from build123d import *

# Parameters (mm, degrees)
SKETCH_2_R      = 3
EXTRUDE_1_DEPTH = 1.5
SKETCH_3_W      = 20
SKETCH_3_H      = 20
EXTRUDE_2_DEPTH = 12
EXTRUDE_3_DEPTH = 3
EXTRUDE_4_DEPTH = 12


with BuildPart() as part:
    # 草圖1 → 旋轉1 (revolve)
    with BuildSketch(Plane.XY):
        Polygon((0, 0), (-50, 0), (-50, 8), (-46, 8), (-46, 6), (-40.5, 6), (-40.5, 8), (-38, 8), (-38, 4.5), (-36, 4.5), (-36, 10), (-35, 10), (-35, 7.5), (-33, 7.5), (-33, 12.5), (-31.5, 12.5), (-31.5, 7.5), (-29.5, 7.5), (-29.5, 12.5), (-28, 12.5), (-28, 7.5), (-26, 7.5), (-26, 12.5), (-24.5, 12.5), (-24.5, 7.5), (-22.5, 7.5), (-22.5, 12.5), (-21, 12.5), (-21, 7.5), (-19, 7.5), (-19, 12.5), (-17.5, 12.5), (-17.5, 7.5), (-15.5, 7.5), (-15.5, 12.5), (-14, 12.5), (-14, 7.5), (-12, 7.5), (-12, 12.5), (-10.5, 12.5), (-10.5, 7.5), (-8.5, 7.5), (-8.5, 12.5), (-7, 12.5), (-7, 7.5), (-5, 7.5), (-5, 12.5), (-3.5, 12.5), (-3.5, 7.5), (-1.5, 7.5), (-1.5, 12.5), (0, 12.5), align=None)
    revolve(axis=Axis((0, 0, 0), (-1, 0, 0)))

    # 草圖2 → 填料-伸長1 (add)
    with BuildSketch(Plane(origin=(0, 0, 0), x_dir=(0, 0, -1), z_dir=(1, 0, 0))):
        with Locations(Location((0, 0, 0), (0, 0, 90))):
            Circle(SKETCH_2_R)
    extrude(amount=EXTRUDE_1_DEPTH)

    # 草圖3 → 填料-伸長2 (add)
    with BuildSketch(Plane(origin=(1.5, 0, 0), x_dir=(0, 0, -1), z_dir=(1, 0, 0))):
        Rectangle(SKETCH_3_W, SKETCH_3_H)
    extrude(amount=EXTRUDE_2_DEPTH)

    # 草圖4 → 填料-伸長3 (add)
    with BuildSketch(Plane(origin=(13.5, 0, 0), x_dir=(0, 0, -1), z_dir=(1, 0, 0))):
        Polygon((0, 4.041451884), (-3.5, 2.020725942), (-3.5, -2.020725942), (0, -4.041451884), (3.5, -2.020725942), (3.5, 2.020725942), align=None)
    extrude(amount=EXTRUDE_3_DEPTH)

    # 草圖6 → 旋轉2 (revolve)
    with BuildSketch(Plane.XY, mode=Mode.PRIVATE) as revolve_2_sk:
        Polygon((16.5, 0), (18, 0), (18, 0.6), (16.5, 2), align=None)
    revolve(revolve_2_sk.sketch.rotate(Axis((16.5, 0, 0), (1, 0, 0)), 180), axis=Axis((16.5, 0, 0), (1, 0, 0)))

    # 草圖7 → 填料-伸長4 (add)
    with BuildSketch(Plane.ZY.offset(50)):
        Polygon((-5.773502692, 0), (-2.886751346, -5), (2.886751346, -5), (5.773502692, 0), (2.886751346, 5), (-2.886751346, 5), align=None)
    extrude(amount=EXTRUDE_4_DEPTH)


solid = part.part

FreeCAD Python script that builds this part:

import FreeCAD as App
import Part
import Sketcher
Q = App.Units.Quantity


def add_polygon(sketch, points):
    """Adds a closed chain of lines whose ends are joined by coincident constraints."""
    first, n = sketch.GeometryCount, len(points)
    for a, b in zip(points, points[1:] + points[:1]):
        sketch.addGeometry(Part.LineSegment(App.Vector(*a, 0), App.Vector(*b, 0)), False)
    for i in range(n):
        sketch.addConstraint(Sketcher.Constraint("Coincident", first + i, 2, first + (i + 1) % n, 1))

doc = App.newDocument("Part")
body = doc.addObject("PartDesign::Body", "Body")

# Sketch on XY plane
sketch1 = doc.addObject("Sketcher::SketchObject", "Sketch")
body.addObject(sketch1)
sketch1.AttachmentSupport = (doc.XY_Plane, [""])
sketch1.MapMode = "FlatFace"
add_polygon(sketch1, [(-50, 0), (0, 0), (0, 12.5), (-1.5, 12.5), (-1.5, 7.5), (-3.5, 7.5), (-3.5, 12.5), (-5, 12.5), (-5, 7.5), (-7, 7.5), (-7, 12.5), (-8.5, 12.5), (-8.5, 7.5), (-10.5, 7.5), (-10.5, 12.5), (-12, 12.5), (-12, 7.5), (-14, 7.5), (-14, 12.5), (-15.5, 12.5), (-15.5, 7.5), (-17.5, 7.5), (-17.5, 12.5), (-19, 12.5), (-19, 7.5), (-21, 7.5), (-21, 12.5), (-22.5, 12.5), (-22.5, 7.5), (-24.5, 7.5), (-24.5, 12.5), (-26, 12.5), (-26, 7.5), (-28, 7.5), (-28, 12.5), (-29.5, 12.5), (-29.5, 7.5), (-31.5, 7.5), (-31.5, 12.5), (-33, 12.5), (-33, 7.5), (-35, 7.5), (-35, 10), (-36, 10), (-36, 4.5), (-38, 4.5), (-38, 8), (-40.5, 8), (-40.5, 6), (-46, 6), (-46, 8), (-50, 8)])  # lines 0-51
sketch1.addConstraint([
    Sketcher.Constraint("Horizontal", 0),
    Sketcher.Constraint("Vertical", 1),
    Sketcher.Constraint("Horizontal", 2),
    Sketcher.Constraint("Vertical", 3),
    Sketcher.Constraint("Horizontal", 4),
    Sketcher.Constraint("Vertical", 5),
    Sketcher.Constraint("Horizontal", 6),
    Sketcher.Constraint("Vertical", 7),
    Sketcher.Constraint("Horizontal", 8),
    Sketcher.Constraint("Vertical", 9),
    Sketcher.Constraint("Horizontal", 10),
    Sketcher.Constraint("Vertical", 11),
    Sketcher.Constraint("Horizontal", 12),
    Sketcher.Constraint("Vertical", 13),
    Sketcher.Constraint("Horizontal", 14),
    Sketcher.Constraint("Vertical", 15),
    Sketcher.Constraint("Horizontal", 16),
    Sketcher.Constraint("Vertical", 17),
    Sketcher.Constraint("Horizontal", 18),
    Sketcher.Constraint("Vertical", 19),
    Sketcher.Constraint("Horizontal", 20),
    Sketcher.Constraint("Vertical", 21),
    Sketcher.Constraint("Horizontal", 22),
    Sketcher.Constraint("Vertical", 23),
    Sketcher.Constraint("Horizontal", 24),
    Sketcher.Constraint("Vertical", 25),
    Sketcher.Constraint("Horizontal", 26),
    Sketcher.Constraint("Vertical", 27),
    Sketcher.Constraint("Horizontal", 28),
    Sketcher.Constraint("Vertical", 29),
    Sketcher.Constraint("Horizontal", 30),
    Sketcher.Constraint("Vertical", 31),
    Sketcher.Constraint("Horizontal", 32),
    Sketcher.Constraint("Vertical", 33),
    Sketcher.Constraint("Horizontal", 34),
    Sketcher.Constraint("Vertical", 35),
    Sketcher.Constraint("Horizontal", 36),
    Sketcher.Constraint("Vertical", 37),
    Sketcher.Constraint("Horizontal", 38),
    Sketcher.Constraint("Vertical", 39),
    Sketcher.Constraint("Horizontal", 40),
    Sketcher.Constraint("Vertical", 41),
    Sketcher.Constraint("Horizontal", 42),
    Sketcher.Constraint("Vertical", 43),
    Sketcher.Constraint("Horizontal", 44),
    Sketcher.Constraint("Vertical", 45),
    Sketcher.Constraint("Horizontal", 46),
    Sketcher.Constraint("Vertical", 47),
    Sketcher.Constraint("Horizontal", 48),
    Sketcher.Constraint("Vertical", 49),
    Sketcher.Constraint("Horizontal", 50),
    Sketcher.Constraint("Vertical", 51),
    Sketcher.Constraint("Coincident", 0, 2, -1, 1),
    Sketcher.Constraint("Horizontal", 2, 2, 5, 2),
    Sketcher.Constraint("Horizontal", 4, 2, 7, 2),
    Sketcher.Constraint("Horizontal", 6, 2, 9, 2),
    Sketcher.Constraint("Horizontal", 8, 2, 11, 2),
    Sketcher.Constraint("Horizontal", 10, 2, 13, 2),
    Sketcher.Constraint("Horizontal", 12, 2, 15, 2),
    Sketcher.Constraint("Horizontal", 14, 2, 17, 2),
    Sketcher.Constraint("Horizontal", 16, 2, 19, 2),
    Sketcher.Constraint("Horizontal", 18, 2, 21, 2),
    Sketcher.Constraint("Horizontal", 20, 2, 23, 2),
    Sketcher.Constraint("Horizontal", 22, 2, 25, 2),
    Sketcher.Constraint("Horizontal", 24, 2, 27, 2),
    Sketcher.Constraint("Horizontal", 26, 2, 29, 2),
    Sketcher.Constraint("Horizontal", 28, 2, 31, 2),
    Sketcher.Constraint("Horizontal", 30, 2, 33, 2),
    Sketcher.Constraint("Horizontal", 32, 2, 35, 2),
    Sketcher.Constraint("Horizontal", 34, 2, 37, 2),
    Sketcher.Constraint("Horizontal", 36, 2, 39, 2),
    Sketcher.Constraint("Horizontal", 46, 2, 49, 2),
    Sketcher.Constraint("Equal", 2, 6),
    Sketcher.Constraint("Equal", 4, 8),
    Sketcher.Constraint("Equal", 6, 10),
    Sketcher.Constraint("Equal", 8, 12),
    Sketcher.Constraint("Equal", 10, 14),
    Sketcher.Constraint("Equal", 12, 16),
    Sketcher.Constraint("Equal", 14, 18),
    Sketcher.Constraint("Equal", 16, 20),
    Sketcher.Constraint("Equal", 18, 22),
    Sketcher.Constraint("Equal", 20, 24),
    Sketcher.Constraint("Equal", 22, 26),
    Sketcher.Constraint("Equal", 24, 28),
    Sketcher.Constraint("Equal", 26, 30),
    Sketcher.Constraint("Equal", 28, 32),
    Sketcher.Constraint("Equal", 30, 34),
    Sketcher.Constraint("Equal", 32, 36),
    Sketcher.Constraint("Equal", 34, 38),
    Sketcher.Constraint("Equal", 36, 40),
    Sketcher.Constraint("Equal", 40, 44),
    Sketcher.Constraint("Equal", 46, 41),
    Sketcher.Constraint("Equal", 48, 43),
    Sketcher.Constraint("Equal", 44, 47),
    Sketcher.Constraint("DistanceX", 0, 1, 0, 2, 50.0),
    Sketcher.Constraint("DistanceX", 4, 2, 4, 1, 2.0),
    Sketcher.Constraint("DistanceX", 42, 2, 42, 1, 1.0),
    Sketcher.Constraint("DistanceX", 50, 2, 50, 1, 4.0),
    Sketcher.Constraint("DistanceY", 3, 2, 3, 1, 5.0),
    Sketcher.Constraint("DistanceY", 51, 2, 51, 1, 8.0),
    Sketcher.Constraint("DistanceX", 2, 2, 2, 1, 1.5),
    Sketcher.Constraint("DistanceX", 46, 2, 46, 1, 2.5),
    Sketcher.Constraint("DistanceY", 1, 1, 1, 2, 12.5),
])
revolution = doc.addObject("PartDesign::Revolution", "Revolution")
body.addObject(revolution)
revolution.Profile = sketch1
revolution.ReferenceAxis = (sketch1, ["H_Axis"])
revolution.Angle = 360

# Sketch on YZ plane
sketch2 = doc.addObject("Sketcher::SketchObject", "Sketch001")
body.addObject(sketch2)
sketch2.AttachmentSupport = (doc.YZ_Plane, [""])
sketch2.MapMode = "FlatFace"
sketch2.addGeometry(Part.Circle(App.Vector(0, 0, 0), App.Vector(0, 0, 1), 3), False)
sketch2.addConstraint([
    Sketcher.Constraint("Coincident", 0, 3, -1, 1),
    Sketcher.Constraint("Diameter", 0, 6.0),
])
pad1 = doc.addObject("PartDesign::Pad", "Pad")
body.addObject(pad1)
pad1.Profile = sketch2
pad1.Length = 1.5

# Sketch on YZ plane
sketch3 = doc.addObject("Sketcher::SketchObject", "Sketch002")
body.addObject(sketch3)
sketch3.AttachmentSupport = (doc.YZ_Plane, [""])
sketch3.MapMode = "FlatFace"
sketch3.AttachmentOffset = App.Placement(App.Vector(0, 0, 1.5), App.Rotation())
add_polygon(sketch3, [(10, 10), (-10, 10), (-10, -10), (10, -10)])  # lines 0-3
sketch3.addConstraint([
    Sketcher.Constraint("Horizontal", 0),
    Sketcher.Constraint("Vertical", 1),
    Sketcher.Constraint("Horizontal", 2),
    Sketcher.Constraint("Vertical", 3),
    Sketcher.Constraint("Symmetric", 0, 2, 2, 2, -1, 1),
    Sketcher.Constraint("Equal", 2, 1),
    Sketcher.Constraint("DistanceX", 0, 2, 0, 1, 20.0),
])
pad2 = doc.addObject("PartDesign::Pad", "Pad001")
body.addObject(pad2)
pad2.Profile = sketch3
pad2.Length = 12

# Sketch on YZ plane
sketch4 = doc.addObject("Sketcher::SketchObject", "Sketch003")
body.addObject(sketch4)
sketch4.AttachmentSupport = (doc.YZ_Plane, [""])
sketch4.MapMode = "FlatFace"
sketch4.AttachmentOffset = App.Placement(App.Vector(0, 0, 13.5), App.Rotation())
add_polygon(sketch4, [(4, 0), (2, 3.5), (-2, 3.5), (-4, 0), (-2, -3.5), (2, -3.5)])  # lines 0-5
sketch4.addConstraint([
    Sketcher.Constraint("Horizontal", 1),
    Sketcher.Constraint("Horizontal", 4),
    Sketcher.Constraint("Symmetric", 0, 2, 3, 2, -1, 1),
    Sketcher.Constraint("Symmetric", 2, 2, 5, 2, -1, 1),
    Sketcher.Constraint("PointOnObject", 2, 2, -1),
    Sketcher.Constraint("Parallel", 2, 5),
    Sketcher.Constraint("Vertical", 1, 2, 3, 2),
    Sketcher.Constraint("Angle", 0, Q("120 deg")),
    Sketcher.Constraint("DistanceY", 3, 2, 1, 2, 7.0),
    Sketcher.Constraint("DistanceX", 1, 2, 1, 1, 4.041452),
])
pad3 = doc.addObject("PartDesign::Pad", "Pad002")
body.addObject(pad3)
pad3.Profile = sketch4
pad3.Length = 3

# Sketch on XY plane
sketch5 = doc.addObject("Sketcher::SketchObject", "Sketch004")
body.addObject(sketch5)
sketch5.AttachmentSupport = (doc.XY_Plane, [""])
sketch5.MapMode = "FlatFace"
add_polygon(sketch5, [(16.5, 0), (18, 0), (18, 0.6), (16.5, 2)])  # lines 0-3
sketch5.addConstraint([
    Sketcher.Constraint("Horizontal", 0),
    Sketcher.Constraint("Vertical", 1),
    Sketcher.Constraint("Vertical", 3),
    Sketcher.Constraint("PointOnObject", 0, 2, -1),
    Sketcher.Constraint("DistanceY", 3, 2, 3, 1, 2.0),
    Sketcher.Constraint("DistanceX", 0, 1, 0, 2, 1.5),
    Sketcher.Constraint("DistanceY", 1, 1, 1, 2, 0.6),
    Sketcher.Constraint("DistanceX", -1, 1, 0, 2, 18.0),
])
revolution2 = doc.addObject("PartDesign::Revolution", "Revolution001")
body.addObject(revolution2)
revolution2.Profile = sketch5
revolution2.ReferenceAxis = (sketch5, ["H_Axis"])
revolution2.Angle = 360

# Sketch on YZ plane
sketch6 = doc.addObject("Sketcher::SketchObject", "Sketch005")
body.addObject(sketch6)
sketch6.AttachmentSupport = (doc.YZ_Plane, [""])
sketch6.MapMode = "FlatFace"
sketch6.AttachmentOffset = App.Placement(App.Vector(0, 0, -50), App.Rotation())
add_polygon(sketch6, [(0, -6), (-5, -3), (-5, 3), (0, 6), (5, 3), (5, -3)])  # lines 0-5
sketch6.addConstraint([
    Sketcher.Constraint("Vertical", 1),
    Sketcher.Constraint("Vertical", 4),
    Sketcher.Constraint("Symmetric", 0, 2, 3, 2, -1, 1),
    Sketcher.Constraint("Symmetric", 2, 2, 5, 2, -1, 1),
    Sketcher.Constraint("PointOnObject", 2, 2, -2),
    Sketcher.Constraint("Parallel", 2, 5),
    Sketcher.Constraint("Horizontal", 1, 2, 3, 2),
    Sketcher.Constraint("Angle", 0, Q("150 deg")),
    Sketcher.Constraint("DistanceX", 0, 2, -1, 1, 5.0),
    Sketcher.Constraint("DistanceY", 1, 1, 1, 2, 5.773503),
])
pad4 = doc.addObject("PartDesign::Pad", "Pad003")
body.addObject(pad4)
pad4.Profile = sketch6
pad4.Length = 12
pad4.Reversed = True

doc.recompute()
